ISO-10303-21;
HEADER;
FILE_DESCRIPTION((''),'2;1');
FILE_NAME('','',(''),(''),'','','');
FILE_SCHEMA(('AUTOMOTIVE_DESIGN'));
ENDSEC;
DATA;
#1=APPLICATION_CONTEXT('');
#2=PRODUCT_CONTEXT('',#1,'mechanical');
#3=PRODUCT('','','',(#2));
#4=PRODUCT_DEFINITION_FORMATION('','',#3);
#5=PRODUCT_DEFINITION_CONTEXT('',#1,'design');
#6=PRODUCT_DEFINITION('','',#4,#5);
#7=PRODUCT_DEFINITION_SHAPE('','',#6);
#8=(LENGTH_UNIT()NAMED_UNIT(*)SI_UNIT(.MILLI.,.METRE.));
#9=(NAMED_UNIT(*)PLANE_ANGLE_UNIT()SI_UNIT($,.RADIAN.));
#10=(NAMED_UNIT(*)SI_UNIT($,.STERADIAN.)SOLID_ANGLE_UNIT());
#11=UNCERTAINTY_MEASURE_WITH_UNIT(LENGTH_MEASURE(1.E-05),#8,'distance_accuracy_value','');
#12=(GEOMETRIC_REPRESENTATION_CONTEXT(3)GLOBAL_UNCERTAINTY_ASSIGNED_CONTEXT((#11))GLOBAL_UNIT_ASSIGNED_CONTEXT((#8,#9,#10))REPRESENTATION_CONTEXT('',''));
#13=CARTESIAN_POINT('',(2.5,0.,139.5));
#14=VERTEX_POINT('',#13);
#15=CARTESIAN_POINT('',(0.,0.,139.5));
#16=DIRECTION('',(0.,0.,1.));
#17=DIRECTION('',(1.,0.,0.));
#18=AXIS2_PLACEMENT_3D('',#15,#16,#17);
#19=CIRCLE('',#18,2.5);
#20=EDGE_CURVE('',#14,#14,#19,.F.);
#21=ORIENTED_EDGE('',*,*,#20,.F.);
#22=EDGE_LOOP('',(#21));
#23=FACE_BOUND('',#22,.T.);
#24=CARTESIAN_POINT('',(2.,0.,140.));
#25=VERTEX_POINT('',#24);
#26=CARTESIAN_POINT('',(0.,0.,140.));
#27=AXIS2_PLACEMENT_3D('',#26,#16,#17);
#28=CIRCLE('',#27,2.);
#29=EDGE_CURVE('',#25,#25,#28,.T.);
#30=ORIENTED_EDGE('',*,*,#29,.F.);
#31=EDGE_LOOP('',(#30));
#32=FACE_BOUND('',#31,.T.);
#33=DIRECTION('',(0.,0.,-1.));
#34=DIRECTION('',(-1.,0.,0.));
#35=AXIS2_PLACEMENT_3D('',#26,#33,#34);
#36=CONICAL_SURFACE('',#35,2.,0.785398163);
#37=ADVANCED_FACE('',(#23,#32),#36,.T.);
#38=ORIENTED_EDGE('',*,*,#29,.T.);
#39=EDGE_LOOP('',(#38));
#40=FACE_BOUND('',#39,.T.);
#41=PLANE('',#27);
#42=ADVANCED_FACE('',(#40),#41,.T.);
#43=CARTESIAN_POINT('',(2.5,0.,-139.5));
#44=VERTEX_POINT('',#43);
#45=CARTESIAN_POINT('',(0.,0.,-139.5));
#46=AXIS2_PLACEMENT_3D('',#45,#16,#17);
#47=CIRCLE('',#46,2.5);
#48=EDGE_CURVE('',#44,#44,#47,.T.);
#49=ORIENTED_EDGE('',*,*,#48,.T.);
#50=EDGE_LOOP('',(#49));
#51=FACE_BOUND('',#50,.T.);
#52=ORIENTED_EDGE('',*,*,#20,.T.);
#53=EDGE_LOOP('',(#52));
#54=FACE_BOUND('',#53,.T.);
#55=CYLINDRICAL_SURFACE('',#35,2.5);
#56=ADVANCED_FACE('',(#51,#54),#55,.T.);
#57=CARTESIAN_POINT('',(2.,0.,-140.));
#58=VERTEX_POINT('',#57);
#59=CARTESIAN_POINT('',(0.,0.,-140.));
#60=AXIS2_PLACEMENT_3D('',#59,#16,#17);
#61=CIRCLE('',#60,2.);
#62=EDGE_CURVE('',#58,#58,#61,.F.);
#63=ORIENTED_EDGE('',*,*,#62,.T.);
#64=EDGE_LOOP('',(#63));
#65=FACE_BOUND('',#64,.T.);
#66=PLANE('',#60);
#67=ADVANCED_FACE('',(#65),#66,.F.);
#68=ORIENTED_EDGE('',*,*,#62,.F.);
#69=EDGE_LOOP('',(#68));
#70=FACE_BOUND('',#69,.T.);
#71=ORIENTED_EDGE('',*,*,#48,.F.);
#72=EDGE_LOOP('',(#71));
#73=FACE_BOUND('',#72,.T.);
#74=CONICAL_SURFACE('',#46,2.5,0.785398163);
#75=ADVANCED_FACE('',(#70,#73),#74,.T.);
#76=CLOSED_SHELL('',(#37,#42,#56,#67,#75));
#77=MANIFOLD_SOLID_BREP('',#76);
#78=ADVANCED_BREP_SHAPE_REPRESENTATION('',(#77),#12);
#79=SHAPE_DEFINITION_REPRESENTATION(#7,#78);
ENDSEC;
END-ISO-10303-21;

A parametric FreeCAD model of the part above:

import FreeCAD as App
import Part
import Sketcher
from FreeCAD import Vector


def edges_at(feature, points):
    """Names of the edges that pass closest to the given points."""
    edges = feature.Shape.Edges
    near = lambda p: min(range(len(edges)), key=lambda i: edges[i].distToShape(Part.Vertex(*p))[0])
    return sorted({f"Edge{near(p) + 1}" for p in points})

doc = App.newDocument("Part")
body = doc.addObject("PartDesign::Body", "Body")

sketch1 = body.newObject("Sketcher::SketchObject", "Sketch")
sketch1.AttachmentSupport = (doc.getObject("XY_Plane"), [""])
sketch1.MapMode = "FlatFace"
sketch1.addGeometry(Part.Circle(Vector(0, 0, 0), Vector(0, 0, 1), 2.5), False)
sketch1.addConstraint([
    Sketcher.Constraint("Coincident", 0, 3, -1, 1),
    Sketcher.Constraint("Diameter", 0, 5.0),
])
pad1 = body.newObject("PartDesign::Pad", "Pad")
pad1.Profile = sketch1
pad1.Length = 280
pad1.Midplane = True
doc.recompute()

chamfer = body.newObject("PartDesign::Chamfer", "Chamfer")
chamfer.Base = (pad1, edges_at(pad1, [(-2.5, 0, -140), (-2.5, 0, 140)]))
chamfer.Size = 0.5

doc.recompute()
